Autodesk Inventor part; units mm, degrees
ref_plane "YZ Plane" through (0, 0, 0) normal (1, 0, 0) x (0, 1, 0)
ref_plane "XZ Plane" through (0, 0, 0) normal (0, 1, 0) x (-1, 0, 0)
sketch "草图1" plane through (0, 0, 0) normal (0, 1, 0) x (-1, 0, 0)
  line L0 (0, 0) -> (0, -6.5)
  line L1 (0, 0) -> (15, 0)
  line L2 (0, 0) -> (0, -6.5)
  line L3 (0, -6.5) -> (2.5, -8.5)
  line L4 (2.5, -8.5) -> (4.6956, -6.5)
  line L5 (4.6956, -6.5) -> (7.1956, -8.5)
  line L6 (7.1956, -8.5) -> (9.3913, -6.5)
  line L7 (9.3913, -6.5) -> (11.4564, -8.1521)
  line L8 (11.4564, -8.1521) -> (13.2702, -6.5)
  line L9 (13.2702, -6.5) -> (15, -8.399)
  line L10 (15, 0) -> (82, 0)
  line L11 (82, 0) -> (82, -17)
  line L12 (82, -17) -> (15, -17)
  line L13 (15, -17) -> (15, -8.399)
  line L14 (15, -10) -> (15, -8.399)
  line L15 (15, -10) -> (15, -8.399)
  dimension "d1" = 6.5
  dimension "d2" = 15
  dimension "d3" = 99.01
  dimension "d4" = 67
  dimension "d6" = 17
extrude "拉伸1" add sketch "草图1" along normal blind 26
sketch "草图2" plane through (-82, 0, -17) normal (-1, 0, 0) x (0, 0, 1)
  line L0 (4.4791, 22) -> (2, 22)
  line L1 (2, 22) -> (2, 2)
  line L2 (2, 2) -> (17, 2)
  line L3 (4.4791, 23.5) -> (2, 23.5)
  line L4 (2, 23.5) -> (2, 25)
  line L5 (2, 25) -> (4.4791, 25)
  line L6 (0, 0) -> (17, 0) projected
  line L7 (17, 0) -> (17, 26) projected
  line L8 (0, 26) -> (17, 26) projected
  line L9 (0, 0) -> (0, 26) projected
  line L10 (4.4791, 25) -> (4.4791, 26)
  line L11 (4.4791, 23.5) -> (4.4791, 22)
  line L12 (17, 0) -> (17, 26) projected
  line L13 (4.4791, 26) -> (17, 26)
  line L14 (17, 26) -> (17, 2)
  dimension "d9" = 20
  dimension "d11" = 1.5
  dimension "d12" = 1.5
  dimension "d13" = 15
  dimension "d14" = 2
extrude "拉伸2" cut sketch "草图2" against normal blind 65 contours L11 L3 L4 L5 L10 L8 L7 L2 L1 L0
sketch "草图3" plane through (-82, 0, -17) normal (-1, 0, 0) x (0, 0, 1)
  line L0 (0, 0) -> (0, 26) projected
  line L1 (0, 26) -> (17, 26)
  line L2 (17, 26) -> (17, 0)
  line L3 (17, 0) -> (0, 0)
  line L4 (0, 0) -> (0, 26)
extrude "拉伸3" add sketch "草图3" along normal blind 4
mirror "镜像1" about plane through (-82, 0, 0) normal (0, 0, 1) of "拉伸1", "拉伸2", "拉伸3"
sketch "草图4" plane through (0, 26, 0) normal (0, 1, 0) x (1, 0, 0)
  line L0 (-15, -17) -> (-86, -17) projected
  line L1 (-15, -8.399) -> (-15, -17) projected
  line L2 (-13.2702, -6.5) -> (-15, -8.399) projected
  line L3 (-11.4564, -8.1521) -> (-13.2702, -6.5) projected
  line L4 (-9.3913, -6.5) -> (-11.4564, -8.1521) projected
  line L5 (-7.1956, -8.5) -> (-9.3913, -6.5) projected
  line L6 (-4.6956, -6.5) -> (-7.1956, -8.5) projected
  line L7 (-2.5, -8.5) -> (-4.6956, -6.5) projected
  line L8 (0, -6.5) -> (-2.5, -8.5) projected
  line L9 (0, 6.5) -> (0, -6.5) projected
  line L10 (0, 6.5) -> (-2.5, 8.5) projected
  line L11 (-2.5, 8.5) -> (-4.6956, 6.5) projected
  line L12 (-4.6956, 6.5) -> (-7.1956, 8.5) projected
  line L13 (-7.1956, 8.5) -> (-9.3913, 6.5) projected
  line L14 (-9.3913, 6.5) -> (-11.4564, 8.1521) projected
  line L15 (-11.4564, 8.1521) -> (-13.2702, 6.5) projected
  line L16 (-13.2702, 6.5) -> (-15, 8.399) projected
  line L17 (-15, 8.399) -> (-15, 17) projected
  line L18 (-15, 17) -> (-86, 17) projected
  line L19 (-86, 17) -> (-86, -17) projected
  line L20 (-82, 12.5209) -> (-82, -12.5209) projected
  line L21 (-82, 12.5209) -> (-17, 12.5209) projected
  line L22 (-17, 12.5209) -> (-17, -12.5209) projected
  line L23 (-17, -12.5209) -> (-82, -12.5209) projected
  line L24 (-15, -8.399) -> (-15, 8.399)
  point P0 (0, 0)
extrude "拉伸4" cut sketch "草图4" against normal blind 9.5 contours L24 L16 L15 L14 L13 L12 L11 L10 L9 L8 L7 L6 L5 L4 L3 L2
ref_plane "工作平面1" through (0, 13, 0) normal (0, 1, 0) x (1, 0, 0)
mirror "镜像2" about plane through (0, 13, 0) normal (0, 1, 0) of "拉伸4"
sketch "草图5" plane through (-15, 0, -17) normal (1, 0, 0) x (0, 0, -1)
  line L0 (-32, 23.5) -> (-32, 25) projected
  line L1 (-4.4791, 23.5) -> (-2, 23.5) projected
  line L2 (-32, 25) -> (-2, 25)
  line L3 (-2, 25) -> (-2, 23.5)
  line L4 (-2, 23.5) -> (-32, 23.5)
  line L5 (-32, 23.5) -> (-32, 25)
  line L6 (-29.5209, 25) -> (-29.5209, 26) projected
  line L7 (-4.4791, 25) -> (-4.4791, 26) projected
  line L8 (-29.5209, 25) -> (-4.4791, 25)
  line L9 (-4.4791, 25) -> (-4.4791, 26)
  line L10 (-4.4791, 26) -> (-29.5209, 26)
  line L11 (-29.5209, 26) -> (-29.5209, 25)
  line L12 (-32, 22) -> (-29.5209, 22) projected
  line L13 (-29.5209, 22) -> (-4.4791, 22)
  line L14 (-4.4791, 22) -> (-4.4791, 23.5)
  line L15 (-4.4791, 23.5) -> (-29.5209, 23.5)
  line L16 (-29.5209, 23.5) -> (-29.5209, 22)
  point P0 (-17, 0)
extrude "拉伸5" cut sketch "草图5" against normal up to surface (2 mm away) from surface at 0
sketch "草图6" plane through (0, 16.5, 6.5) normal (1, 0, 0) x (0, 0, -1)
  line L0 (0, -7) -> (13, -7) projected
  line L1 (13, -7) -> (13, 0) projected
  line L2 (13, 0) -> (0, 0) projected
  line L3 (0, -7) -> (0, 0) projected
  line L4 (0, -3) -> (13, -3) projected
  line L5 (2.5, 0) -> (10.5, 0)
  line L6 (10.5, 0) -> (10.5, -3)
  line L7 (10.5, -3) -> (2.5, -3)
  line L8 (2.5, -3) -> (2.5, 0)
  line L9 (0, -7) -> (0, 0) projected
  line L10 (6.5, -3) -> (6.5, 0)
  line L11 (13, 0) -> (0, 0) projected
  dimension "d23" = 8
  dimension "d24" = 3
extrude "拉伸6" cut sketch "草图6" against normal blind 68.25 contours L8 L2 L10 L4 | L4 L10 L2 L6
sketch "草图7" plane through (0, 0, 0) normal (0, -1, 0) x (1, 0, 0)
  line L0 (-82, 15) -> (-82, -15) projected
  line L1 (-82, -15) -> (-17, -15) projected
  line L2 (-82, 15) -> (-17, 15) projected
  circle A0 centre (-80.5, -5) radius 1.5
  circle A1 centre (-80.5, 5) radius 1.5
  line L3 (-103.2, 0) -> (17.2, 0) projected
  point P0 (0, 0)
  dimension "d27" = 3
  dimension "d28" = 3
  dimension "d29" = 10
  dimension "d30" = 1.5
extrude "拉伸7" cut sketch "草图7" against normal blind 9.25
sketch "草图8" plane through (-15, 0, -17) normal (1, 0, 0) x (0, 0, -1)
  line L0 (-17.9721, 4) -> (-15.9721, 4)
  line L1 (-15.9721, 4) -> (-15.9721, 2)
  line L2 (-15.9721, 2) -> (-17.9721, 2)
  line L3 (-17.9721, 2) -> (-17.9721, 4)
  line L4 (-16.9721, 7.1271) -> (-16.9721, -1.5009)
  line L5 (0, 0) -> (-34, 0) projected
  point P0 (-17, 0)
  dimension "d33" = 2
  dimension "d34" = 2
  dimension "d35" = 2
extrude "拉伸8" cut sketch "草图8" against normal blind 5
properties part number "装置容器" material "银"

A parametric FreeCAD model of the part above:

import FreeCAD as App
import Part
import Sketcher
Q = App.Units.Quantity

doc = App.newDocument("Part")
params = doc.addObject("Spreadsheet::Sheet", "Params")
for row, (alias, value) in enumerate([
    ("sketch1_width", "67 mm"),
    ("sketch1_height", "17 mm"),
    ("sketch1_height2", "6.5 mm"),
    ("pad1_length", "26 mm"),
    ("sketch2_width", "20 mm"),
    ("sketch2_height", "15 mm"),
    ("sketch2_width2", "1.5 mm"),
    ("sketch2_width3", "24 mm"),
    ("pocket1_length", "65 mm"),
    ("sketch3_width", "26 mm"),
    ("sketch3_height", "17 mm"),
    ("pad2_length", "4 mm"),
    ("sketch4_height", "13 mm"),
    ("pocket2_length", "9.5 mm"),
    ("sketch5_width", "1 mm"),
    ("sketch5_width2", "1.5 mm"),
    ("pocket3_length", "2 mm"),
    ("sketch6_width", "3 mm"),
    ("sketch6_height", "8 mm"),
    ("pocket4_length", "68.25 mm"),
    ("sketch7_diameter", "3 mm"),
    ("pocket5_length", "9.25 mm"),
    ("sketch8_width", "2 mm"),
    ("pocket6_length", "5 mm"),
], start=1):
    params.set(f"A{row}", alias)
    params.set(f"B{row}", "=" + value)
    params.setAlias(f"B{row}", alias)

body = doc.addObject("PartDesign::Body", "Body")

sketch1 = body.newObject("Sketcher::SketchObject", "Sketch")
sketch1.AttachmentSupport = (doc.getObject("XZ_Plane"), [""])
sketch1.MapMode = "FlatFace"
sketch1.addGeometry(Part.LineSegment(App.Vector(-82, 0, 0), App.Vector(0, 0, 0)), False)
sketch1.addGeometry(Part.LineSegment(App.Vector(0, 0, 0), App.Vector(0, -6.5, 0)), False)
sketch1.addGeometry(Part.LineSegment(App.Vector(0, -6.5, 0), App.Vector(-2.5, -8.5, 0)), False)
sketch1.addGeometry(Part.LineSegment(App.Vector(-2.5, -8.5, 0), App.Vector(-4.7, -6.5, 0)), False)
sketch1.addGeometry(Part.LineSegment(App.Vector(-4.7, -6.5, 0), App.Vector(-7.2, -8.5, 0)), False)
sketch1.addGeometry(Part.LineSegment(App.Vector(-7.2, -8.5, 0), App.Vector(-9.4, -6.5, 0)), False)
sketch1.addGeometry(Part.LineSegment(App.Vector(-9.4, -6.5, 0), App.Vector(-11.5, -8.2, 0)), False)
sketch1.addGeometry(Part.LineSegment(App.Vector(-11.5, -8.2, 0), App.Vector(-13.3, -6.5, 0)), False)
sketch1.addGeometry(Part.LineSegment(App.Vector(-13.3, -6.5, 0), App.Vector(-15, -8.4, 0)), False)
sketch1.addGeometry(Part.LineSegment(App.Vector(-15, -8.4, 0), App.Vector(-15, -17, 0)), False)
sketch1.addGeometry(Part.LineSegment(App.Vector(-15, -17, 0), App.Vector(-82, -17, 0)), False)
sketch1.addGeometry(Part.LineSegment(App.Vector(-82, -17, 0), App.Vector(-82, 0, 0)), False)
sketch1.addConstraint(Sketcher.Constraint("Coincident", 0, 2, 1, 1))
sketch1.addConstraint(Sketcher.Constraint("Coincident", 1, 2, 2, 1))
sketch1.addConstraint(Sketcher.Constraint("Coincident", 2, 2, 3, 1))
sketch1.addConstraint(Sketcher.Constraint("Coincident", 3, 2, 4, 1))
sketch1.addConstraint(Sketcher.Constraint("Coincident", 4, 2, 5, 1))
sketch1.addConstraint(Sketcher.Constraint("Coincident", 5, 2, 6, 1))
sketch1.addConstraint(Sketcher.Constraint("Coincident", 6, 2, 7, 1))
sketch1.addConstraint(Sketcher.Constraint("Coincident", 7, 2, 8, 1))
sketch1.addConstraint(Sketcher.Constraint("Coincident", 8, 2, 9, 1))
sketch1.addConstraint(Sketcher.Constraint("Coincident", 9, 2, 10, 1))
sketch1.addConstraint(Sketcher.Constraint("Coincident", 10, 2, 11, 1))
sketch1.addConstraint(Sketcher.Constraint("Coincident", 11, 2, 0, 1))
sketch1.addConstraint(Sketcher.Constraint("Horizontal", 0))
sketch1.addConstraint(Sketcher.Constraint("Vertical", 1))
sketch1.addConstraint(Sketcher.Constraint("Vertical", 9))
sketch1.addConstraint(Sketcher.Constraint("Horizontal", 10))
sketch1.addConstraint(Sketcher.Constraint("Vertical", 11))
sketch1.addConstraint(Sketcher.Constraint("Coincident", 0, 2, -1, 1))
sketch1.addConstraint(Sketcher.Constraint("Parallel", 2, 4))
sketch1.addConstraint(Sketcher.Constraint("Parallel", 3, 5))
sketch1.addConstraint(Sketcher.Constraint("Parallel", 4, 6))
sketch1.addConstraint(Sketcher.Constraint("Parallel", 5, 7))
sketch1.addConstraint(Sketcher.Constraint("Perpendicular", 7, 8))
sketch1.addConstraint(Sketcher.Constraint("Horizontal", 1, 2, 3, 2))
sketch1.addConstraint(Sketcher.Constraint("Horizontal", 2, 2, 4, 2))
sketch1.addConstraint(Sketcher.Constraint("Horizontal", 3, 2, 5, 2))
sketch1.addConstraint(Sketcher.Constraint("Horizontal", 5, 2, 7, 2))
sketch1.addConstraint(Sketcher.Constraint("DistanceX", 10, 2, 10, 1, Q("67 mm")))
sketch1.addConstraint(Sketcher.Constraint("DistanceY", 11, 1, 11, 2, Q("17 mm")))
sketch1.addConstraint(Sketcher.Constraint("DistanceY", 1, 2, 1, 1, Q("6.5 mm")))
sketch1.addConstraint(Sketcher.Constraint("DistanceX", 8, 2, -1, 1, Q("15 mm")))
sketch1.addConstraint(Sketcher.Constraint("DistanceY", 2, 2, 1, 2, Q("2 mm")))
sketch1.addConstraint(Sketcher.Constraint("DistanceX", 2, 2, -1, 1, Q("2.5 mm")))
sketch1.addConstraint(Sketcher.Constraint("Angle", 3, Q("137.6692 deg")))
sketch1.addConstraint(Sketcher.Constraint("DistanceY", 9, 2, 9, 1, Q("8.601 mm")))
sketch1.setExpression("Constraints[27]", "Params.sketch1_width")
sketch1.setExpression("Constraints[28]", "Params.sketch1_height")
sketch1.setExpression("Constraints[29]", "Params.sketch1_height2")
pad1 = body.newObject("PartDesign::Pad", "Pad")
pad1.Profile = sketch1
pad1.setExpression("Length", "Params.pad1_length")
pad1.Reversed = True

sketch2 = body.newObject("Sketcher::SketchObject", "Sketch001")
sketch2.AttachmentSupport = (doc.getObject("YZ_Plane"), [""])
sketch2.MapMode = "FlatFace"
sketch2.AttachmentOffset = App.Placement(App.Vector(0, 0, -82), App.Rotation())
sketch2.addGeometry(Part.LineSegment(App.Vector(23.5, -12.5, 0), App.Vector(22, -12.5, 0)), False)
sketch2.addGeometry(Part.LineSegment(App.Vector(22, -12.5, 0), App.Vector(22, -15, 0)), False)
sketch2.addGeometry(Part.LineSegment(App.Vector(22, -15, 0), App.Vector(2, -15, 0)), False)
sketch2.addGeometry(Part.LineSegment(App.Vector(2, -15, 0), App.Vector(2, 0, 0)), False)
sketch2.addGeometry(Part.LineSegment(App.Vector(2, 0, 0), App.Vector(26, 0, 0)), False)
sketch2.addGeometry(Part.LineSegment(App.Vector(26, 0, 0), App.Vector(26, -12.5, 0)), False)
sketch2.addGeometry(Part.LineSegment(App.Vector(26, -12.5, 0), App.Vector(25, -12.5, 0)), False)
sketch2.addGeometry(Part.LineSegment(App.Vector(25, -12.5, 0), App.Vector(25, -15, 0)), False)
sketch2.addGeometry(Part.LineSegment(App.Vector(25, -15, 0), App.Vector(23.5, -15, 0)), False)
sketch2.addGeometry(Part.LineSegment(App.Vector(23.5, -15, 0), App.Vector(23.5, -12.5, 0)), False)
sketch2.addConstraint(Sketcher.Constraint("Coincident", 0, 2, 1, 1))
sketch2.addConstraint(Sketcher.Constraint("Coincident", 1, 2, 2, 1))
sketch2.addConstraint(Sketcher.Constraint("Coincident", 2, 2, 3, 1))
sketch2.addConstraint(Sketcher.Constraint("Coincident", 3, 2, 4, 1))
sketch2.addConstraint(Sketcher.Constraint("Coincident", 4, 2, 5, 1))
sketch2.addConstraint(Sketcher.Constraint("Coincident", 5, 2, 6, 1))
sketch2.addConstraint(Sketcher.Constraint("Coincident", 6, 2, 7, 1))
sketch2.addConstraint(Sketcher.Constraint("Coincident", 7, 2, 8, 1))
sketch2.addConstraint(Sketcher.Constraint("Coincident", 8, 2, 9, 1))
sketch2.addConstraint(Sketcher.Constraint("Coincident", 9, 2, 0, 1))
sketch2.addConstraint(Sketcher.Constraint("Horizontal", 0))
sketch2.addConstraint(Sketcher.Constraint("Vertical", 1))
sketch2.addConstraint(Sketcher.Constraint("Horizontal", 2))
sketch2.addConstraint(Sketcher.Constraint("Vertical", 3))
sketch2.addConstraint(Sketcher.Constraint("Horizontal", 4))
sketch2.addConstraint(Sketcher.Constraint("Vertical", 5))
sketch2.addConstraint(Sketcher.Constraint("Horizontal", 6))
sketch2.addConstraint(Sketcher.Constraint("Vertical", 7))
sketch2.addConstraint(Sketcher.Constraint("Horizontal", 8))
sketch2.addConstraint(Sketcher.Constraint("Vertical", 9))
sketch2.addConstraint(Sketcher.Constraint("PointOnObject", 3, 2, -1))
sketch2.addConstraint(Sketcher.Constraint("Horizontal", 0, 2, 5, 2))
sketch2.addConstraint(Sketcher.Constraint("Horizontal", 2, 2, 7, 2))
sketch2.addConstraint(Sketcher.Constraint("Equal", 0, 8))
sketch2.addConstraint(Sketcher.Constraint("DistanceX", 2, 2, 2, 1, Q("20 mm")))
sketch2.addConstraint(Sketcher.Constraint("DistanceY", 3, 1, 3, 2, Q("15 mm")))
sketch2.addConstraint(Sketcher.Constraint("DistanceX", 0, 2, 0, 1, Q("1.5 mm")))
sketch2.addConstraint(Sketcher.Constraint("DistanceX", -1, 1, 2, 2, Q("2 mm")))
sketch2.addConstraint(Sketcher.Constraint("DistanceX", 4, 1, 4, 2, Q("24 mm")))
sketch2.addConstraint(Sketcher.Constraint("DistanceY", 1, 2, 1, 1, Q("2.479 mm")))
sketch2.setExpression("Constraints[24]", "Params.sketch2_width")
sketch2.setExpression("Constraints[25]", "Params.sketch2_height")
sketch2.setExpression("Constraints[26]", "Params.sketch2_width2")
sketch2.setExpression("Constraints[28]", "Params.sketch2_width3")
pocket1 = body.newObject("PartDesign::Pocket", "Pocket")
pocket1.Profile = sketch2
pocket1.setExpression("Length", "Params.pocket1_length")
pocket1.Reversed = True

sketch3 = body.newObject("Sketcher::SketchObject", "Sketch002")
sketch3.AttachmentSupport = (doc.getObject("YZ_Plane"), [""])
sketch3.MapMode = "FlatFace"
sketch3.AttachmentOffset = App.Placement(App.Vector(0, 0, -82), App.Rotation())
sketch3.addGeometry(Part.LineSegment(App.Vector(26, -17, 0), App.Vector(0, -17, 0)), False)
sketch3.addGeometry(Part.LineSegment(App.Vector(0, -17, 0), App.Vector(0, 0, 0)), False)
sketch3.addGeometry(Part.LineSegment(App.Vector(0, 0, 0), App.Vector(26, 0, 0)), False)
sketch3.addGeometry(Part.LineSegment(App.Vector(26, 0, 0), App.Vector(26, -17, 0)), False)
sketch3.addConstraint(Sketcher.Constraint("Coincident", 0, 2, 1, 1))
sketch3.addConstraint(Sketcher.Constraint("Coincident", 1, 2, 2, 1))
sketch3.addConstraint(Sketcher.Constraint("Coincident", 2, 2, 3, 1))
sketch3.addConstraint(Sketcher.Constraint("Coincident", 3, 2, 0, 1))
sketch3.addConstraint(Sketcher.Constraint("Horizontal", 0))
sketch3.addConstraint(Sketcher.Constraint("Vertical", 1))
sketch3.addConstraint(Sketcher.Constraint("Horizontal", 2))
sketch3.addConstraint(Sketcher.Constraint("Vertical", 3))
sketch3.addConstraint(Sketcher.Constraint("Coincident", 1, 2, -1, 1))
sketch3.addConstraint(Sketcher.Constraint("DistanceX", 0, 2, 0, 1, Q("26 mm")))
sketch3.addConstraint(Sketcher.Constraint("DistanceY", 1, 1, 1, 2, Q("17 mm")))
sketch3.setExpression("Constraints[9]", "Params.sketch3_width")
sketch3.setExpression("Constraints[10]", "Params.sketch3_height")
pad2 = body.newObject("PartDesign::Pad", "Pad001")
pad2.Profile = sketch3
pad2.setExpression("Length", "Params.pad2_length")
pad2.Reversed = True
doc.recompute()

mirrored = body.newObject("PartDesign::Mirrored", "Mirrored")
mirrored.Originals = [pad1, pocket1, pad2]
mirrored.MirrorPlane = (doc.getObject("XY_Plane"), [""])
body.Tip = mirrored

sketch4 = body.newObject("Sketcher::SketchObject", "Sketch003")
sketch4.AttachmentSupport = (doc.getObject("XZ_Plane"), [""])
sketch4.MapMode = "FlatFace"
sketch4.AttachmentOffset = App.Placement(App.Vector(0, 0, -26), App.Rotation())
sketch4.addGeometry(Part.LineSegment(App.Vector(-15, -8.4, 0), App.Vector(-15, 8.4, 0)), False)
sketch4.addGeometry(Part.LineSegment(App.Vector(-15, 8.4, 0), App.Vector(-13.3, 6.5, 0)), False)
sketch4.addGeometry(Part.LineSegment(App.Vector(-13.3, 6.5, 0), App.Vector(-11.5, 8.2, 0)), False)
sketch4.addGeometry(Part.LineSegment(App.Vector(-11.5, 8.2, 0), App.Vector(-9.4, 6.5, 0)), False)
sketch4.addGeometry(Part.LineSegment(App.Vector(-9.4, 6.5, 0), App.Vector(-7.2, 8.5, 0)), False)
sketch4.addGeometry(Part.LineSegment(App.Vector(-7.2, 8.5, 0), App.Vector(-4.7, 6.5, 0)), False)
sketch4.addGeometry(Part.LineSegment(App.Vector(-4.7, 6.5, 0), App.Vector(-2.5, 8.5, 0)), False)
sketch4.addGeometry(Part.LineSegment(App.Vector(-2.5, 8.5, 0), App.Vector(0, 6.5, 0)), False)
sketch4.addGeometry(Part.LineSegment(App.Vector(0, 6.5, 0), App.Vector(0, -6.5, 0)), False)
sketch4.addGeometry(Part.LineSegment(App.Vector(0, -6.5, 0), App.Vector(-2.5, -8.5, 0)), False)
sketch4.addGeometry(Part.LineSegment(App.Vector(-2.5, -8.5, 0), App.Vector(-4.7, -6.5, 0)), False)
sketch4.addGeometry(Part.LineSegment(App.Vector(-4.7, -6.5, 0), App.Vector(-7.2, -8.5, 0)), False)
sketch4.addGeometry(Part.LineSegment(App.Vector(-7.2, -8.5, 0), App.Vector(-9.4, -6.5, 0)), False)
sketch4.addGeometry(Part.LineSegment(App.Vector(-9.4, -6.5, 0), App.Vector(-11.5, -8.2, 0)), False)
sketch4.addGeometry(Part.LineSegment(App.Vector(-11.5, -8.2, 0), App.Vector(-13.3, -6.5, 0)), False)
sketch4.addGeometry(Part.LineSegment(App.Vector(-13.3, -6.5, 0), App.Vector(-15, -8.4, 0)), False)
sketch4.addConstraint(Sketcher.Constraint("Coincident", 0, 2, 1, 1))
sketch4.addConstraint(Sketcher.Constraint("Coincident", 1, 2, 2, 1))
sketch4.addConstraint(Sketcher.Constraint("Coincident", 2, 2, 3, 1))
sketch4.addConstraint(Sketcher.Constraint("Coincident", 3, 2, 4, 1))
sketch4.addConstraint(Sketcher.Constraint("Coincident", 4, 2, 5, 1))
sketch4.addConstraint(Sketcher.Constraint("Coincident", 5, 2, 6, 1))
sketch4.addConstraint(Sketcher.Constraint("Coincident", 6, 2, 7, 1))
sketch4.addConstraint(Sketcher.Constraint("Coincident", 7, 2, 8, 1))
sketch4.addConstraint(Sketcher.Constraint("Coincident", 8, 2, 9, 1))
sketch4.addConstraint(Sketcher.Constraint("Coincident", 9, 2, 10, 1))
sketch4.addConstraint(Sketcher.Constraint("Coincident", 10, 2, 11, 1))
sketch4.addConstraint(Sketcher.Constraint("Coincident", 11, 2, 12, 1))
sketch4.addConstraint(Sketcher.Constraint("Coincident", 12, 2, 13, 1))
sketch4.addConstraint(Sketcher.Constraint("Coincident", 13, 2, 14, 1))
sketch4.addConstraint(Sketcher.Constraint("Coincident", 14, 2, 15, 1))
sketch4.addConstraint(Sketcher.Constraint("Coincident", 15, 2, 0, 1))
sketch4.addConstraint(Sketcher.Constraint("Vertical", 0))
sketch4.addConstraint(Sketcher.Constraint("Vertical", 8))
sketch4.addConstraint(Sketcher.Constraint("Symmetric", 7, 2, 8, 2, -1, 1))
sketch4.addConstraint(Sketcher.Constraint("Symmetric", 6, 2, 9, 2, -1))
sketch4.addConstraint(Sketcher.Constraint("Symmetric", 5, 2, 10, 2, -1))
sketch4.addConstraint(Sketcher.Constraint("Symmetric", 4, 2, 11, 2, -1))
sketch4.addConstraint(Sketcher.Constraint("Symmetric", 3, 2, 12, 2, -1))
sketch4.addConstraint(Sketcher.Constraint("Symmetric", 2, 2, 13, 2, -1))
sketch4.addConstraint(Sketcher.Constraint("Symmetric", 1, 2, 14, 2, -1))
sketch4.addConstraint(Sketcher.Constraint("Perpendicular", 1, 2))
sketch4.addConstraint(Sketcher.Constraint("Parallel", 2, 4))
sketch4.addConstraint(Sketcher.Constraint("Parallel", 3, 5))
sketch4.addConstraint(Sketcher.Constraint("Parallel", 4, 6))
sketch4.addConstraint(Sketcher.Constraint("Parallel", 5, 7))
sketch4.addConstraint(Sketcher.Constraint("Perpendicular", 14, 15))
sketch4.addConstraint(Sketcher.Constraint("Horizontal", 1, 2, 3, 2))
sketch4.addConstraint(Sketcher.Constraint("Horizontal", 3, 2, 5, 2))
sketch4.addConstraint(Sketcher.Constraint("Horizontal", 4, 2, 6, 2))
sketch4.addConstraint(Sketcher.Constraint("Horizontal", 5, 2, 7, 2))
sketch4.addConstraint(Sketcher.Constraint("DistanceY", 8, 2, 8, 1, Q("13 mm")))
sketch4.addConstraint(Sketcher.Constraint("DistanceX", 0, 2, -1, 1, Q("15 mm")))
sketch4.addConstraint(Sketcher.Constraint("DistanceY", 3, 2, 4, 2, Q("2 mm")))
sketch4.addConstraint(Sketcher.Constraint("DistanceX", 6, 2, -1, 1, Q("2.5 mm")))
sketch4.addConstraint(Sketcher.Constraint("Angle", 1, Q("-47.6696 deg")))
sketch4.addConstraint(Sketcher.Constraint("DistanceY", 0, 1, 0, 2, Q("16.798 mm")))
sketch4.setExpression("Constraints[35]", "Params.sketch4_height")
pocket2 = body.newObject("PartDesign::Pocket", "Pocket001")
pocket2.Profile = sketch4
pocket2.setExpression("Length", "Params.pocket2_length")
pocket2.Reversed = True
doc.recompute()

datumplane = body.newObject("PartDesign::Plane", "DatumPlane")
datumplane.AttachmentSupport = (doc.getObject("XZ_Plane"), [""])
datumplane.MapMode = "FlatFace"
datumplane.AttachmentOffset = App.Placement(App.Vector(0, 0, -13), App.Rotation())
mirrored2 = body.newObject("PartDesign::Mirrored", "Mirrored001")
mirrored2.Originals = [pocket2]
mirrored2.MirrorPlane = (datumplane, [""])
body.Tip = mirrored2

sketch5 = body.newObject("Sketcher::SketchObject", "Sketch004")
sketch5.AttachmentSupport = (doc.getObject("YZ_Plane"), [""])
sketch5.MapMode = "FlatFace"
sketch5.AttachmentOffset = App.Placement(App.Vector(0, 0, -15), App.Rotation())
sketch5.addGeometry(Part.LineSegment(App.Vector(25, 15, 0), App.Vector(23.5, 15, 0)), False)
sketch5.addGeometry(Part.LineSegment(App.Vector(23.5, 15, 0), App.Vector(23.5, 12.5, 0)), False)
sketch5.addGeometry(Part.LineSegment(App.Vector(23.5, 12.5, 0), App.Vector(22, 12.5, 0)), False)
sketch5.addGeometry(Part.LineSegment(App.Vector(22, 12.5, 0), App.Vector(22, -12.5, 0)), False)
sketch5.addGeometry(Part.LineSegment(App.Vector(22, -12.5, 0), App.Vector(23.5, -12.5, 0)), False)
sketch5.addGeometry(Part.LineSegment(App.Vector(23.5, -12.5, 0), App.Vector(23.5, -15, 0)), False)
sketch5.addGeometry(Part.LineSegment(App.Vector(23.5, -15, 0), App.Vector(25, -15, 0)), False)
sketch5.addGeometry(Part.LineSegment(App.Vector(25, -15, 0), App.Vector(25, -12.5, 0)), False)
sketch5.addGeometry(Part.LineSegment(App.Vector(25, -12.5, 0), App.Vector(26, -12.5, 0)), False)
sketch5.addGeometry(Part.LineSegment(App.Vector(26, -12.5, 0), App.Vector(26, 12.5, 0)), False)
sketch5.addGeometry(Part.LineSegment(App.Vector(26, 12.5, 0), App.Vector(25, 12.5, 0)), False)
sketch5.addGeometry(Part.LineSegment(App.Vector(25, 12.5, 0), App.Vector(25, 15, 0)), False)
sketch5.addConstraint(Sketcher.Constraint("Coincident", 0, 2, 1, 1))
sketch5.addConstraint(Sketcher.Constraint("Coincident", 1, 2, 2, 1))
sketch5.addConstraint(Sketcher.Constraint("Coincident", 2, 2, 3, 1))
sketch5.addConstraint(Sketcher.Constraint("Coincident", 3, 2, 4, 1))
sketch5.addConstraint(Sketcher.Constraint("Coincident", 4, 2, 5, 1))
sketch5.addConstraint(Sketcher.Constraint("Coincident", 5, 2, 6, 1))
sketch5.addConstraint(Sketcher.Constraint("Coincident", 6, 2, 7, 1))
sketch5.addConstraint(Sketcher.Constraint("Coincident", 7, 2, 8, 1))
sketch5.addConstraint(Sketcher.Constraint("Coincident", 8, 2, 9, 1))
sketch5.addConstraint(Sketcher.Constraint("Coincident", 9, 2, 10, 1))
sketch5.addConstraint(Sketcher.Constraint("Coincident", 10, 2, 11, 1))
sketch5.addConstraint(Sketcher.Constraint("Coincident", 11, 2, 0, 1))
sketch5.addConstraint(Sketcher.Constraint("Horizontal", 0))
sketch5.addConstraint(Sketcher.Constraint("Vertical", 1))
sketch5.addConstraint(Sketcher.Constraint("Horizontal", 2))
sketch5.addConstraint(Sketcher.Constraint("Vertical", 3))
sketch5.addConstraint(Sketcher.Constraint("Horizontal", 4))
sketch5.addConstraint(Sketcher.Constraint("Vertical", 5))
sketch5.addConstraint(Sketcher.Constraint("Horizontal", 6))
sketch5.addConstraint(Sketcher.Constraint("Vertical", 7))
sketch5.addConstraint(Sketcher.Constraint("Horizontal", 8))
sketch5.addConstraint(Sketcher.Constraint("Vertical", 9))
sketch5.addConstraint(Sketcher.Constraint("Horizontal", 10))
sketch5.addConstraint(Sketcher.Constraint("Vertical", 11))
sketch5.addConstraint(Sketcher.Constraint("Symmetric", 1, 2, 4, 2, -1))
sketch5.addConstraint(Sketcher.Constraint("Symmetric", 7, 2, 10, 2, -1))
sketch5.addConstraint(Sketcher.Constraint("Horizontal", 4, 2, 7, 2))
sketch5.addConstraint(Sketcher.Constraint("Equal", 0, 2))
sketch5.addConstraint(Sketcher.Constraint("Equal", 1, 5))
sketch5.addConstraint(Sketcher.Constraint("DistanceX", 8, 1, 8, 2, Q("1 mm")))
sketch5.addConstraint(Sketcher.Constraint("DistanceX", 0, 2, 0, 1, Q("1.5 mm")))
sketch5.addConstraint(Sketcher.Constraint("DistanceY", -1, 1, 0, 2, Q("15 mm")))
sketch5.addConstraint(Sketcher.Constraint("DistanceX", -1, 1, 2, 2, Q("22 mm")))
sketch5.addConstraint(Sketcher.Constraint("DistanceY", 1, 2, 1, 1, Q("2.479 mm")))
sketch5.setExpression("Constraints[29]", "Params.sketch5_width")
sketch5.setExpression("Constraints[30]", "Params.sketch5_width2")
pocket3 = body.newObject("PartDesign::Pocket", "Pocket002")
pocket3.Profile = sketch5
pocket3.setExpression("Length", "Params.pocket3_length")

sketch6 = body.newObject("Sketcher::SketchObject", "Sketch005")
sketch6.AttachmentSupport = (doc.getObject("YZ_Plane"), [""])
sketch6.MapMode = "FlatFace"
sketch6.addGeometry(Part.LineSegment(App.Vector(16.5, 4, 0), App.Vector(13.5, 4, 0)), False)
sketch6.addGeometry(Part.LineSegment(App.Vector(13.5, 4, 0), App.Vector(13.5, -4, 0)), False)
sketch6.addGeometry(Part.LineSegment(App.Vector(13.5, -4, 0), App.Vector(16.5, -4, 0)), False)
sketch6.addGeometry(Part.LineSegment(App.Vector(16.5, -4, 0), App.Vector(16.5, 4, 0)), False)
sketch6.addConstraint(Sketcher.Constraint("Coincident", 0, 2, 1, 1))
sketch6.addConstraint(Sketcher.Constraint("Coincident", 1, 2, 2, 1))
sketch6.addConstraint(Sketcher.Constraint("Coincident", 2, 2, 3, 1))
sketch6.addConstraint(Sketcher.Constraint("Coincident", 3, 2, 0, 1))
sketch6.addConstraint(Sketcher.Constraint("Horizontal", 0))
sketch6.addConstraint(Sketcher.Constraint("Vertical", 1))
sketch6.addConstraint(Sketcher.Constraint("Horizontal", 2))
sketch6.addConstraint(Sketcher.Constraint("Vertical", 3))
sketch6.addConstraint(Sketcher.Constraint("DistanceX", 0, 2, 0, 1, Q("3 mm")))
sketch6.addConstraint(Sketcher.Constraint("DistanceY", 1, 2, 1, 1, Q("8 mm")))
sketch6.addConstraint(Sketcher.Constraint("DistanceY", -1, 1, 0, 2, Q("4 mm")))
sketch6.addConstraint(Sketcher.Constraint("DistanceX", -1, 1, 0, 2, Q("13.5 mm")))
sketch6.setExpression("Constraints[8]", "Params.sketch6_width")
sketch6.setExpression("Constraints[9]", "Params.sketch6_height")
pocket4 = body.newObject("PartDesign::Pocket", "Pocket003")
pocket4.Profile = sketch6
pocket4.setExpression("Length", "Params.pocket4_length")

sketch7 = body.newObject("Sketcher::SketchObject", "Sketch006")
sketch7.AttachmentSupport = (doc.getObject("XZ_Plane"), [""])
sketch7.MapMode = "FlatFace"
sketch7.addGeometry(Part.Circle(App.Vector(-80.5, -5, 0), App.Vector(0, 0, 1), 1.5), False)
sketch7.addGeometry(Part.Circle(App.Vector(-80.5, 5, 0), App.Vector(0, 0, 1), 1.5), False)
sketch7.addConstraint(Sketcher.Constraint("Equal", 0, 1))
sketch7.addConstraint(Sketcher.Constraint("Symmetric", 0, 3, 1, 3, -1))
sketch7.addConstraint(Sketcher.Constraint("Diameter", 0, Q("3 mm")))
sketch7.addConstraint(Sketcher.Constraint("DistanceY", 0, 3, 1, 3, Q("10 mm")))
sketch7.addConstraint(Sketcher.Constraint("DistanceX", 0, 3, -1, 1, Q("80.5 mm")))
sketch7.setExpression("Constraints[2]", "Params.sketch7_diameter")
pocket5 = body.newObject("PartDesign::Pocket", "Pocket004")
pocket5.Profile = sketch7
pocket5.setExpression("Length", "Params.pocket5_length")

sketch8 = body.newObject("Sketcher::SketchObject", "Sketch007")
sketch8.AttachmentSupport = (doc.getObject("YZ_Plane"), [""])
sketch8.MapMode = "FlatFace"
sketch8.AttachmentOffset = App.Placement(App.Vector(0, 0, -15), App.Rotation())
sketch8.addGeometry(Part.LineSegment(App.Vector(4, 1, 0), App.Vector(2, 1, 0)), False)
sketch8.addGeometry(Part.LineSegment(App.Vector(2, 1, 0), App.Vector(2, -1, 0)), False)
sketch8.addGeometry(Part.LineSegment(App.Vector(2, -1, 0), App.Vector(4, -1, 0)), False)
sketch8.addGeometry(Part.LineSegment(App.Vector(4, -1, 0), App.Vector(4, 1, 0)), False)
sketch8.addConstraint(Sketcher.Constraint("Coincident", 0, 2, 1, 1))
sketch8.addConstraint(Sketcher.Constraint("Coincident", 1, 2, 2, 1))
sketch8.addConstraint(Sketcher.Constraint("Coincident", 2, 2, 3, 1))
sketch8.addConstraint(Sketcher.Constraint("Coincident", 3, 2, 0, 1))
sketch8.addConstraint(Sketcher.Constraint("Horizontal", 0))
sketch8.addConstraint(Sketcher.Constraint("Vertical", 1))
sketch8.addConstraint(Sketcher.Constraint("Horizontal", 2))
sketch8.addConstraint(Sketcher.Constraint("Vertical", 3))
sketch8.addConstraint(Sketcher.Constraint("Equal", 2, 1))
sketch8.addConstraint(Sketcher.Constraint("DistanceX", 0, 2, 0, 1, Q("2 mm")))
sketch8.addConstraint(Sketcher.Constraint("DistanceX", -1, 1, 0, 2, Q("2 mm")))
sketch8.addConstraint(Sketcher.Constraint("DistanceY", -1, 1, 0, 2, Q("0.972 mm")))
sketch8.setExpression("Constraints[9]", "Params.sketch8_width")
pocket6 = body.newObject("PartDesign::Pocket", "Pocket005")
pocket6.Profile = sketch8
pocket6.setExpression("Length", "Params.pocket6_length")

doc.recompute()
